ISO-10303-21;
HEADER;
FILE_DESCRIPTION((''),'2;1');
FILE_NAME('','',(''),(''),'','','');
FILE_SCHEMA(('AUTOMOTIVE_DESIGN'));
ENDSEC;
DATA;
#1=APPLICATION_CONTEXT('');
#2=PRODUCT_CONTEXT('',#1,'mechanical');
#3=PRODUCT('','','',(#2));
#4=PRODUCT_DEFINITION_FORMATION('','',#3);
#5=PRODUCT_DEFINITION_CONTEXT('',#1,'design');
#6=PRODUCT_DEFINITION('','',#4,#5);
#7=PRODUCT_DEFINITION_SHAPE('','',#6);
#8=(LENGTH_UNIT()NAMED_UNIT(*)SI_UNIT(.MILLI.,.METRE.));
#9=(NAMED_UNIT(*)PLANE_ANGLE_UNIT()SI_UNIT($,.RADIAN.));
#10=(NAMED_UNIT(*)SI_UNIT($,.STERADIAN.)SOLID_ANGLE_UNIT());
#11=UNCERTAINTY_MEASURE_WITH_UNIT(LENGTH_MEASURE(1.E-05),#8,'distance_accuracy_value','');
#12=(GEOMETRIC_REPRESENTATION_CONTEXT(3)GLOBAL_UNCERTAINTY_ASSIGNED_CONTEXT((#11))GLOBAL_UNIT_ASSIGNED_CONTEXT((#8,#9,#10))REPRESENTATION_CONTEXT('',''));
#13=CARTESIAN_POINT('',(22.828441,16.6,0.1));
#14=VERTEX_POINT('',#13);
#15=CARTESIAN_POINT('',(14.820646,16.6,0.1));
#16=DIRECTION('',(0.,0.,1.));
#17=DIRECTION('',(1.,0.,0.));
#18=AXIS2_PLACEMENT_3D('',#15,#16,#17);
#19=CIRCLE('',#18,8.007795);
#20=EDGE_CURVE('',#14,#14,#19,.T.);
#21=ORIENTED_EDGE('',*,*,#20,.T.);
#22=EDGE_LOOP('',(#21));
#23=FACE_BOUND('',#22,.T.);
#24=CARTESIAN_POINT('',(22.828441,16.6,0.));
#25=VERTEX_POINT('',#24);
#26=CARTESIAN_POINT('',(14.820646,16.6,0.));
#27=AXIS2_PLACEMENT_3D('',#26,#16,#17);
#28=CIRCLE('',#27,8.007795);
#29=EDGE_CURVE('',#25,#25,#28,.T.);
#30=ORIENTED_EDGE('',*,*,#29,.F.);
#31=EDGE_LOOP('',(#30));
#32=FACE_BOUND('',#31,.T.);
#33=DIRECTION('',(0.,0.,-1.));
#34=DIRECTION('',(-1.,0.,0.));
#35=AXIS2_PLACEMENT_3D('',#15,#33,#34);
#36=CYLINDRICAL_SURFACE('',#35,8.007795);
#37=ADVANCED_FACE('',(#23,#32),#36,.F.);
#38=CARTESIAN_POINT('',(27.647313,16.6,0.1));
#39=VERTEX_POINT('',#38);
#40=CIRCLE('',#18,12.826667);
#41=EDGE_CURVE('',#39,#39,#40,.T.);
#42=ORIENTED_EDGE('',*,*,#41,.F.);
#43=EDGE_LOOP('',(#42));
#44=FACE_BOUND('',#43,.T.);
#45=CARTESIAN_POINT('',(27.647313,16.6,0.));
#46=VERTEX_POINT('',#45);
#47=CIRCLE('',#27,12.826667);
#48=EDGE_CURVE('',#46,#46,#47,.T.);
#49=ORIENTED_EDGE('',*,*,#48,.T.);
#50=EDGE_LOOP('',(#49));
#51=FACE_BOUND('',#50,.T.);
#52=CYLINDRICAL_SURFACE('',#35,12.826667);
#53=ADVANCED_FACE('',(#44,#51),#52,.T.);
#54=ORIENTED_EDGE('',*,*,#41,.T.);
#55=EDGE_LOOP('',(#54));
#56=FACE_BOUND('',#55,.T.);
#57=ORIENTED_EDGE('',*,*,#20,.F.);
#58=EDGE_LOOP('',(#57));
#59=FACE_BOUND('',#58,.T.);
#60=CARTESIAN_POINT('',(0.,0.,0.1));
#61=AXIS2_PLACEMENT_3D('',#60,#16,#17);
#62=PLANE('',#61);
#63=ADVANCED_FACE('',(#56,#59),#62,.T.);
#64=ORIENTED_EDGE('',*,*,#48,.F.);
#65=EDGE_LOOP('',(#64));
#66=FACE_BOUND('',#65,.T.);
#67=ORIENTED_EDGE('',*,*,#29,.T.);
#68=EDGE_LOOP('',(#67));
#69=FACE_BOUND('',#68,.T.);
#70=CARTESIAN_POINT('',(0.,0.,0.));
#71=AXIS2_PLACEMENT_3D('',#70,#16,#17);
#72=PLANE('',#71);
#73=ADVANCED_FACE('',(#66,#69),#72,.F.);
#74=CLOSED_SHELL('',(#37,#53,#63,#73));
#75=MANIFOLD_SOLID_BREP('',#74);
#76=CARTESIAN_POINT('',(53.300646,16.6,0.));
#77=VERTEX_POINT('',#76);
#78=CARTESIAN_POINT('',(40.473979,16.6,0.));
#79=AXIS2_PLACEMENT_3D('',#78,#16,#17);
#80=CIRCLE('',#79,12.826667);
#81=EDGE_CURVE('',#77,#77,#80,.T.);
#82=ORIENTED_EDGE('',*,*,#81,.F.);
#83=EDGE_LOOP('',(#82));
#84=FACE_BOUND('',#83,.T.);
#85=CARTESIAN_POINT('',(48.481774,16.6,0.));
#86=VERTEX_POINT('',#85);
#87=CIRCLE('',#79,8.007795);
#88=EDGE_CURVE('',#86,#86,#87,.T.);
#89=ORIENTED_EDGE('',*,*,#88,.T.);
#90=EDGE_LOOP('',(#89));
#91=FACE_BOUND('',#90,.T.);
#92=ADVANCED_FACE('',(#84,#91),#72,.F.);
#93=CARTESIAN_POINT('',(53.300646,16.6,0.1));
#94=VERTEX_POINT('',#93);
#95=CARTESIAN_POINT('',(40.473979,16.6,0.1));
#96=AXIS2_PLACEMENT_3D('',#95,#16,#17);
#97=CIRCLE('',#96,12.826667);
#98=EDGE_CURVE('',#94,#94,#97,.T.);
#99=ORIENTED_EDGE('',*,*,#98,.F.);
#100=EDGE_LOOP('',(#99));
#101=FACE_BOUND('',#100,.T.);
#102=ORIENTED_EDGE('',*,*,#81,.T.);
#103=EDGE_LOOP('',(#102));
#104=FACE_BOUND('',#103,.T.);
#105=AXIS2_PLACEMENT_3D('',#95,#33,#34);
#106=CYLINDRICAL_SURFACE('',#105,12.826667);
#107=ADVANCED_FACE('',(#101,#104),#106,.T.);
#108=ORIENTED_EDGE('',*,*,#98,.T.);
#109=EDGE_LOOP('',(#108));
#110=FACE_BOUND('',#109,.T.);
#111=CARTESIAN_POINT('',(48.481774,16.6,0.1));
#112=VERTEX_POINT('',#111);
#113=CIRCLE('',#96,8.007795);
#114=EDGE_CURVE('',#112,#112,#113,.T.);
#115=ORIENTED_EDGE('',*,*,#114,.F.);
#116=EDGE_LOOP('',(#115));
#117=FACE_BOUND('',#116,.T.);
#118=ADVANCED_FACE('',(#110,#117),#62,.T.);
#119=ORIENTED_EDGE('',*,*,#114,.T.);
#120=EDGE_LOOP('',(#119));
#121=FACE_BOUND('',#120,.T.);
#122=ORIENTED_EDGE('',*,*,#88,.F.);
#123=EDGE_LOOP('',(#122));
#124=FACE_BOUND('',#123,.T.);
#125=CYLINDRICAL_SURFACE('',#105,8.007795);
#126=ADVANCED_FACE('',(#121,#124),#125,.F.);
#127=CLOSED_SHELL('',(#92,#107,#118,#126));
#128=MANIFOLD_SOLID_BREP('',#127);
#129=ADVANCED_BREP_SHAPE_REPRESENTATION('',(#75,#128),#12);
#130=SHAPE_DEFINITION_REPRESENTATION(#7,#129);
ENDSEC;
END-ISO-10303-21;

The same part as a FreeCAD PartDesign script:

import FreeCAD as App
import Part
import Sketcher

V = App.Vector
Q = App.Units.Quantity

doc = App.newDocument("Part")
body = doc.addObject("PartDesign::Body", "Body")

# Sketch on XY plane
sketch1 = body.newObject("Sketcher::SketchObject", "Sketch")
sketch1.AttachmentSupport = (doc.getObject("XY_Plane"), [""])
sketch1.MapMode = "FlatFace"
sketch1.addGeometry([
    Part.Circle(V(15, 17, 0), V(0, 0, 1), 13),
    Part.Circle(V(15, 17, 0), V(0, 0, 1), 8),
], False)
sketch1.addConstraint([
    Sketcher.Constraint("Coincident", 1, 3, 0, 3),
    Sketcher.Constraint("DistanceY", -1, 1, 0, 3, Q("16.6 mm")),
    Sketcher.Constraint("Diameter", 1, Q("16.015589 mm")),
    Sketcher.Constraint("Diameter", 0, Q("25.653333 mm")),
    Sketcher.Constraint("DistanceX", -1, 1, 0, 3, Q("14.820646 mm")),
])
pad1 = body.newObject("PartDesign::Pad", "Pad")
pad1.Profile = sketch1
pad1.Length = 0.1
body2 = doc.addObject("PartDesign::Body", "Body001")

# Sketch on XY plane
sketch2 = body2.newObject("Sketcher::SketchObject", "Sketch001")
sketch2.AttachmentSupport = (doc.getObject("XY_Plane001"), [""])
sketch2.MapMode = "FlatFace"
sketch2.addGeometry([
    Part.Circle(V(40, 17, 0), V(0, 0, 1), 13),
    Part.Circle(V(40, 17, 0), V(0, 0, 1), 8),
], False)
sketch2.addConstraint([
    Sketcher.Constraint("Coincident", 1, 3, 0, 3),
    Sketcher.Constraint("DistanceY", -1, 1, 0, 3, Q("16.6 mm")),
    Sketcher.Constraint("Diameter", 1, Q("16.015589 mm")),
    Sketcher.Constraint("Diameter", 0, Q("25.653333 mm")),
    Sketcher.Constraint("DistanceX", -1, 1, 0, 3, Q("40.473979 mm")),
])
pad2 = body2.newObject("PartDesign::Pad", "Pad001")
pad2.Profile = sketch2
pad2.Length = 0.1

doc.recompute()
